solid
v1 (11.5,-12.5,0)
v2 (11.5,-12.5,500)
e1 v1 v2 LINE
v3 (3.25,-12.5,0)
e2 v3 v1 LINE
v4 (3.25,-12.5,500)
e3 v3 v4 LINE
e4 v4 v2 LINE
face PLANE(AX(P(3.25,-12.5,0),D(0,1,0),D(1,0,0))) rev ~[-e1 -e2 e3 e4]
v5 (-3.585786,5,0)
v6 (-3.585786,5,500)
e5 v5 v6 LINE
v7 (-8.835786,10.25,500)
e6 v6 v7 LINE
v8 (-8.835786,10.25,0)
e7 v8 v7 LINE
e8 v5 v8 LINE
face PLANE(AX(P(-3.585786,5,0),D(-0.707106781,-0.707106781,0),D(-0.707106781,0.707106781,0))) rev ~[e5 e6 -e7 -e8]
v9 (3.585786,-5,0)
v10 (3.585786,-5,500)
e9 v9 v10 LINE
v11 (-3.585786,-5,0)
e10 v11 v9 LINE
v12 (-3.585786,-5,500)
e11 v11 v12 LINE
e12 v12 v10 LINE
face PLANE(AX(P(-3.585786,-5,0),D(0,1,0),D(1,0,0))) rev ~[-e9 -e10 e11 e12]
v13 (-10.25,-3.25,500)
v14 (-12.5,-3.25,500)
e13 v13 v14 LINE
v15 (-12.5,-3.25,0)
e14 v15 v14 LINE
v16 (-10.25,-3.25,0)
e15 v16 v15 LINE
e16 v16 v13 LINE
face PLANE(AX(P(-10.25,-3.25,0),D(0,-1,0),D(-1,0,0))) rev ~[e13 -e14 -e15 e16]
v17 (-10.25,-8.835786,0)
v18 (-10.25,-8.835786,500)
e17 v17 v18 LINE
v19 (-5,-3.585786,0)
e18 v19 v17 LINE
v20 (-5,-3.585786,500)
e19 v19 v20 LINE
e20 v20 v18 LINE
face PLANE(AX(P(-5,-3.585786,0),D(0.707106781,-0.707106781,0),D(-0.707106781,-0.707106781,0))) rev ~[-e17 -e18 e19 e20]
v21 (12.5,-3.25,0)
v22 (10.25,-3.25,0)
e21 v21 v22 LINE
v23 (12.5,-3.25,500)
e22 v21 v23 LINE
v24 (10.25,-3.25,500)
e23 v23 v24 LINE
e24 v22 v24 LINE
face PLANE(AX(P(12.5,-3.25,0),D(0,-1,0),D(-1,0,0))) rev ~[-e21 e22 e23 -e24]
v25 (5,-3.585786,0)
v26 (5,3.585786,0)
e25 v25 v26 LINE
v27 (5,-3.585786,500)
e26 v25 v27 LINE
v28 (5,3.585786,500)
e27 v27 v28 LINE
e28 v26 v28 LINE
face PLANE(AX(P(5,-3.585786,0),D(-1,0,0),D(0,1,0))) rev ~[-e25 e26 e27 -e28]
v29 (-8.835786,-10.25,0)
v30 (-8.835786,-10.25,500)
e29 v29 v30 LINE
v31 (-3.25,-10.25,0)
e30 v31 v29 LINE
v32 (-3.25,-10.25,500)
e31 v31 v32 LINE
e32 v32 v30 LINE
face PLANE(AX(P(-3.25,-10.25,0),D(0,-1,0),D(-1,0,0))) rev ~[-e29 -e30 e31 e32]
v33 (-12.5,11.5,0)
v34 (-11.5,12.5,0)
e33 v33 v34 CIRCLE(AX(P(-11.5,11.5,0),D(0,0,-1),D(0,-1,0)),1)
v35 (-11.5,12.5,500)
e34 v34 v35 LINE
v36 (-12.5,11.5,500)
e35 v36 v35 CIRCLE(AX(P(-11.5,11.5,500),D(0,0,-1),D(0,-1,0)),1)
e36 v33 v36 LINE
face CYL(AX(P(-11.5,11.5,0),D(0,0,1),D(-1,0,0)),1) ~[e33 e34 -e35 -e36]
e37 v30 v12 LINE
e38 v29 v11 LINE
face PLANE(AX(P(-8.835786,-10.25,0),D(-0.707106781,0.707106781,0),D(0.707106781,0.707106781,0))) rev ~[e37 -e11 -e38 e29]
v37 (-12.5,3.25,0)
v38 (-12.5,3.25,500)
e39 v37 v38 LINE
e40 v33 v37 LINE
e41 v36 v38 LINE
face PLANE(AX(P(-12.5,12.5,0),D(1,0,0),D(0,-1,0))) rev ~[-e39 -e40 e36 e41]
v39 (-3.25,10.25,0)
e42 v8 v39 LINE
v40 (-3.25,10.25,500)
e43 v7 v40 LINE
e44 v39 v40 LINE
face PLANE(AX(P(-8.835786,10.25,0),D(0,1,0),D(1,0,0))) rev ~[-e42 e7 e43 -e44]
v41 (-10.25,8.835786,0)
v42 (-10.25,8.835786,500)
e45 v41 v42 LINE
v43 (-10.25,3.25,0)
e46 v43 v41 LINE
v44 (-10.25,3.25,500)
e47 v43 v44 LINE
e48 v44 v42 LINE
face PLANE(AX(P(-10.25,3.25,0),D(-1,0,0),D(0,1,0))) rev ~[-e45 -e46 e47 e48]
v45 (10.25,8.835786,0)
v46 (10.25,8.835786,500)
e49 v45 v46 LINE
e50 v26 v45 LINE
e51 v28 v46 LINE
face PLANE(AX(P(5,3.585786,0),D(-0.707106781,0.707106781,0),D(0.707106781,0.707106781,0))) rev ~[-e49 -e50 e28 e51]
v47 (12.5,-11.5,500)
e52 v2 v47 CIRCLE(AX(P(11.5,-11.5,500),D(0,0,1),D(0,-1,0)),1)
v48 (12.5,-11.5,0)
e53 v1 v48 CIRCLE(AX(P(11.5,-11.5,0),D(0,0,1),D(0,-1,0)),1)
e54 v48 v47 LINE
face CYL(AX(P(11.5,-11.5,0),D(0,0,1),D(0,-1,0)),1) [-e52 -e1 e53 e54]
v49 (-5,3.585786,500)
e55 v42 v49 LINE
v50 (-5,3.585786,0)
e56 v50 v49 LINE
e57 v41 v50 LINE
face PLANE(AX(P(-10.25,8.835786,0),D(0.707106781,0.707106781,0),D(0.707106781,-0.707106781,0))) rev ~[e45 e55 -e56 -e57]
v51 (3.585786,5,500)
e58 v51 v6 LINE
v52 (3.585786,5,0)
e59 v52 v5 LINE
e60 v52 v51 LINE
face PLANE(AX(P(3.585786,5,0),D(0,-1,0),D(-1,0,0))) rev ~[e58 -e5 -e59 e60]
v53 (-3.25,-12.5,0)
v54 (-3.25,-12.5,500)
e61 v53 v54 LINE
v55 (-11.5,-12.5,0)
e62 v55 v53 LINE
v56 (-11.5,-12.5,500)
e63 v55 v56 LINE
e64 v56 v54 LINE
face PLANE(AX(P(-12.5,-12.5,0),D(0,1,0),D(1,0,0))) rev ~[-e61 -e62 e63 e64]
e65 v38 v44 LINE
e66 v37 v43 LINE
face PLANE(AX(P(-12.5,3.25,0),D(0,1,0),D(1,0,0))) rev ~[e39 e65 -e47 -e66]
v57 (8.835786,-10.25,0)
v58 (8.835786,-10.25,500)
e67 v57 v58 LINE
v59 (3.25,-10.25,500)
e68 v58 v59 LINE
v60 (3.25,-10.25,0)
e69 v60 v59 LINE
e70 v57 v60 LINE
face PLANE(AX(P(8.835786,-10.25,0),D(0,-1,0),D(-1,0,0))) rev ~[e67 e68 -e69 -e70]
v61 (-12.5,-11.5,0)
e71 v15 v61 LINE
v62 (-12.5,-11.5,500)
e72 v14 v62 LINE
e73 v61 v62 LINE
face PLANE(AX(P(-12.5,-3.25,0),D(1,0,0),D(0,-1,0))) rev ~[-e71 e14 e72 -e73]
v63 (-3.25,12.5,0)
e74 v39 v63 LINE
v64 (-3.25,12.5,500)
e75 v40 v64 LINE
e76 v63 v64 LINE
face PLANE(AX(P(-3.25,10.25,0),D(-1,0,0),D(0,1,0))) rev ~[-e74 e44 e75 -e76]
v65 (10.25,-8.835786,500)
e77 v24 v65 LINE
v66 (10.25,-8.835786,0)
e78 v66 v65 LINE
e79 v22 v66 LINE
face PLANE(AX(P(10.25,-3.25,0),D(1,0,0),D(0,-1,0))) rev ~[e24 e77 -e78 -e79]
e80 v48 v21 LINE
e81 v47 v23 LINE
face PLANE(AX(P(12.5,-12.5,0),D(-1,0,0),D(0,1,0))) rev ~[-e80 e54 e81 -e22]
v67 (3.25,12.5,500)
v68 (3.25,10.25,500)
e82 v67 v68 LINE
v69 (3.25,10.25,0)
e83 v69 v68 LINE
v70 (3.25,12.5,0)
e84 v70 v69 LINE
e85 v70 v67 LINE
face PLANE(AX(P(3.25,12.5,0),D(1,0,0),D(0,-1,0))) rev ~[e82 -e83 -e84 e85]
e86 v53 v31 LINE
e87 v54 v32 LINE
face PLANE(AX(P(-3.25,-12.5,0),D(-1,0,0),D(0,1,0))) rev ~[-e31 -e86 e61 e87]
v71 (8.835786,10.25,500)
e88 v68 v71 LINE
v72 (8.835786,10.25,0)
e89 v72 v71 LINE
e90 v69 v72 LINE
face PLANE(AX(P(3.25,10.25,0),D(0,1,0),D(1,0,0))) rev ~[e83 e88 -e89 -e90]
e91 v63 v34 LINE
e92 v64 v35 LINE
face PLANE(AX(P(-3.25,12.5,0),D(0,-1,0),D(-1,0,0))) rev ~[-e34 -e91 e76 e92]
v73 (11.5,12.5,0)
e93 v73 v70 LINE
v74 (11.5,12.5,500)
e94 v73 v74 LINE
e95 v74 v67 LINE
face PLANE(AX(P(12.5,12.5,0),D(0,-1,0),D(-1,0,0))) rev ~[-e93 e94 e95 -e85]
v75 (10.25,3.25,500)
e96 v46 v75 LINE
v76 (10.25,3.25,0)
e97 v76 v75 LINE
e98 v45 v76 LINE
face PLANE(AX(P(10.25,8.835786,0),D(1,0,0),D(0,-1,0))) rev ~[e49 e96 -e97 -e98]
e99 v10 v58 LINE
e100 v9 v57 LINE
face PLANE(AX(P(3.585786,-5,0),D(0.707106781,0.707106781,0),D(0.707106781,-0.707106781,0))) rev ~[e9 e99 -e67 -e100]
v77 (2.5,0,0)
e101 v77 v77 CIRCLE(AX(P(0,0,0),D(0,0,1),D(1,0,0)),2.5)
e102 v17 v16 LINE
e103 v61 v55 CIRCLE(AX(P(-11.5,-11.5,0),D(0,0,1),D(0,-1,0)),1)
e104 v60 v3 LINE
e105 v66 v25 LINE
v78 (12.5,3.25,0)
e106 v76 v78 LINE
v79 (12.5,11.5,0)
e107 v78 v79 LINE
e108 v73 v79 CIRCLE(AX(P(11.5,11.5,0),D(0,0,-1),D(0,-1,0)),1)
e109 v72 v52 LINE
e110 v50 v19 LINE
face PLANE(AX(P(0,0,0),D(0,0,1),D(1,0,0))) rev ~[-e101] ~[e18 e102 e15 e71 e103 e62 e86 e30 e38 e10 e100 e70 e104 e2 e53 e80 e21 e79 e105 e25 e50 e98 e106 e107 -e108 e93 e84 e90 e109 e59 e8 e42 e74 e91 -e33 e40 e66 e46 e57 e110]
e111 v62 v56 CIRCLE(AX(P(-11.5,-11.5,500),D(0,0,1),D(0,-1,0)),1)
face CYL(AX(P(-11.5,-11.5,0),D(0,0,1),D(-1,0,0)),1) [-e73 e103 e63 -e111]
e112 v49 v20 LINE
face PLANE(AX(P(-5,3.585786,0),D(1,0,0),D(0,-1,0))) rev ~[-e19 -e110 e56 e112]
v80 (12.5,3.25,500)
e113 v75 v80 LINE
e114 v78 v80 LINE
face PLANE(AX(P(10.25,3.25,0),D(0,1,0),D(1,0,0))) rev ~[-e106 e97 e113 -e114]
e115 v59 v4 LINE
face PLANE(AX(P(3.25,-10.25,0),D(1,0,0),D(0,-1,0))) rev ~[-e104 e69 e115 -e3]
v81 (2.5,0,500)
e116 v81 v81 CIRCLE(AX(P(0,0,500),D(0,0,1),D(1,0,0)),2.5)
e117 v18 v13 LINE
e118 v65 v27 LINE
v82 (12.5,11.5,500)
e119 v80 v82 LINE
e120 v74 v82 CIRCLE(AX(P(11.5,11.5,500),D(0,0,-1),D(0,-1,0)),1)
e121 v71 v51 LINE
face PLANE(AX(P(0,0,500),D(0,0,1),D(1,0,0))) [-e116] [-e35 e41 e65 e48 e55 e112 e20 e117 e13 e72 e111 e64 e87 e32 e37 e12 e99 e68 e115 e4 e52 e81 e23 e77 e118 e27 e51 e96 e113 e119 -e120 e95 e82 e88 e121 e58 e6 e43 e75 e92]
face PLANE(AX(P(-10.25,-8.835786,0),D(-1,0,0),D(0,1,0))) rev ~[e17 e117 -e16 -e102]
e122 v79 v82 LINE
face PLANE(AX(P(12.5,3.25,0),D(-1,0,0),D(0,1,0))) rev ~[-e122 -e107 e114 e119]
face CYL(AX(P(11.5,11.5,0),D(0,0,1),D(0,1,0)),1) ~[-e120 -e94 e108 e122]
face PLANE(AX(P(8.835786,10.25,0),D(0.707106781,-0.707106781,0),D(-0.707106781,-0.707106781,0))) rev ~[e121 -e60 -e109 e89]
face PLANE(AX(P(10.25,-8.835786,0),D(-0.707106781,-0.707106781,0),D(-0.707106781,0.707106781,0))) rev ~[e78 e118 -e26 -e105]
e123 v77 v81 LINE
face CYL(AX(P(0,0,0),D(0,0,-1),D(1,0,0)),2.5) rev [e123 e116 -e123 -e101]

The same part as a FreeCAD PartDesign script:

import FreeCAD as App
import Part
import Sketcher
from FreeCAD import Vector


def edges_at(feature, points):
    """Names of the edges that pass closest to the given points."""
    edges = feature.Shape.Edges
    near = lambda p: min(range(len(edges)), key=lambda i: edges[i].distToShape(Part.Vertex(*p))[0])
    return sorted({f"Edge{near(p) + 1}" for p in points})

doc = App.newDocument("Part")
params = doc.addObject("Spreadsheet::Sheet", "Params")
for row, (alias, value) in enumerate([
    ("sketch1_diameter", "5 mm"),
    ("sketch1_width", "2.25 mm"),
    ("pad1_length", "500 mm"),
    ("fillet_radius", "1 mm"),
], start=1):
    params.set(f"A{row}", alias)
    params.set(f"B{row}", "=" + value)
    params.setAlias(f"B{row}", alias)

body = doc.addObject("PartDesign::Body", "Body")

sketch1 = body.newObject("Sketcher::SketchObject", "Sketch")
sketch1.AttachmentSupport = (doc.getObject("XY_Plane"), [""])
sketch1.MapMode = "FlatFace"
sketch1.addGeometry(Part.LineSegment(Vector(-12.5, 12.5, 0), Vector(-12.5, 3.2, 0)), False)
sketch1.addGeometry(Part.LineSegment(Vector(-12.5, 3.2, 0), Vector(-10.2, 3.2, 0)), False)
sketch1.addGeometry(Part.LineSegment(Vector(-10.2, 3.2, 0), Vector(-10.2, 8.8, 0)), False)
sketch1.addGeometry(Part.LineSegment(Vector(-10.2, 8.8, 0), Vector(-5, 3.6, 0)), False)
sketch1.addGeometry(Part.LineSegment(Vector(-5, 3.6, 0), Vector(-5, -3.6, 0)), False)
sketch1.addGeometry(Part.LineSegment(Vector(-5, -3.6, 0), Vector(-10.2, -8.8, 0)), False)
sketch1.addGeometry(Part.LineSegment(Vector(-10.2, -8.8, 0), Vector(-10.2, -3.2, 0)), False)
sketch1.addGeometry(Part.LineSegment(Vector(-10.2, -3.2, 0), Vector(-12.5, -3.2, 0)), False)
sketch1.addGeometry(Part.LineSegment(Vector(-12.5, -3.2, 0), Vector(-12.5, -12.5, 0)), False)
sketch1.addGeometry(Part.LineSegment(Vector(-12.5, -12.5, 0), Vector(-3.2, -12.5, 0)), False)
sketch1.addGeometry(Part.LineSegment(Vector(-3.2, -12.5, 0), Vector(-3.2, -10.2, 0)), False)
sketch1.addGeometry(Part.LineSegment(Vector(-3.2, -10.2, 0), Vector(-8.8, -10.2, 0)), False)
sketch1.addGeometry(Part.LineSegment(Vector(-8.8, -10.2, 0), Vector(-3.6, -5, 0)), False)
sketch1.addGeometry(Part.LineSegment(Vector(-3.6, -5, 0), Vector(3.6, -5, 0)), False)
sketch1.addGeometry(Part.LineSegment(Vector(3.6, -5, 0), Vector(8.8, -10.2, 0)), False)
sketch1.addGeometry(Part.LineSegment(Vector(8.8, -10.2, 0), Vector(3.2, -10.2, 0)), False)
sketch1.addGeometry(Part.LineSegment(Vector(3.2, -10.2, 0), Vector(3.2, -12.5, 0)), False)
sketch1.addGeometry(Part.LineSegment(Vector(3.2, -12.5, 0), Vector(12.5, -12.5, 0)), False)
sketch1.addGeometry(Part.LineSegment(Vector(12.5, -12.5, 0), Vector(12.5, -3.2, 0)), False)
sketch1.addGeometry(Part.LineSegment(Vector(12.5, -3.2, 0), Vector(10.2, -3.2, 0)), False)
sketch1.addGeometry(Part.LineSegment(Vector(10.2, -3.2, 0), Vector(10.2, -8.8, 0)), False)
sketch1.addGeometry(Part.LineSegment(Vector(10.2, -8.8, 0), Vector(5, -3.6, 0)), False)
sketch1.addGeometry(Part.LineSegment(Vector(5, -3.6, 0), Vector(5, 3.6, 0)), False)
sketch1.addGeometry(Part.LineSegment(Vector(5, 3.6, 0), Vector(10.2, 8.8, 0)), False)
sketch1.addGeometry(Part.LineSegment(Vector(10.2, 8.8, 0), Vector(10.2, 3.2, 0)), False)
sketch1.addGeometry(Part.LineSegment(Vector(10.2, 3.2, 0), Vector(12.5, 3.2, 0)), False)
sketch1.addGeometry(Part.LineSegment(Vector(12.5, 3.2, 0), Vector(12.5, 12.5, 0)), False)
sketch1.addGeometry(Part.LineSegment(Vector(12.5, 12.5, 0), Vector(3.2, 12.5, 0)), False)
sketch1.addGeometry(Part.LineSegment(Vector(3.2, 12.5, 0), Vector(3.2, 10.2, 0)), False)
sketch1.addGeometry(Part.LineSegment(Vector(3.2, 10.2, 0), Vector(8.8, 10.2, 0)), False)
sketch1.addGeometry(Part.LineSegment(Vector(8.8, 10.2, 0), Vector(3.6, 5, 0)), False)
sketch1.addGeometry(Part.LineSegment(Vector(3.6, 5, 0), Vector(-3.6, 5, 0)), False)
sketch1.addGeometry(Part.LineSegment(Vector(-3.6, 5, 0), Vector(-8.8, 10.2, 0)), False)
sketch1.addGeometry(Part.LineSegment(Vector(-8.8, 10.2, 0), Vector(-3.2, 10.2, 0)), False)
sketch1.addGeometry(Part.LineSegment(Vector(-3.2, 10.2, 0), Vector(-3.2, 12.5, 0)), False)
sketch1.addGeometry(Part.LineSegment(Vector(-3.2, 12.5, 0), Vector(-12.5, 12.5, 0)), False)
sketch1.addGeometry(Part.Circle(Vector(0, 0, 0), Vector(0, 0, 1), 2.5), False)
sketch1.addConstraint(Sketcher.Constraint("Coincident", 0, 2, 1, 1))
sketch1.addConstraint(Sketcher.Constraint("Coincident", 1, 2, 2, 1))
sketch1.addConstraint(Sketcher.Constraint("Coincident", 2, 2, 3, 1))
sketch1.addConstraint(Sketcher.Constraint("Coincident", 3, 2, 4, 1))
sketch1.addConstraint(Sketcher.Constraint("Coincident", 4, 2, 5, 1))
sketch1.addConstraint(Sketcher.Constraint("Coincident", 5, 2, 6, 1))
sketch1.addConstraint(Sketcher.Constraint("Coincident", 6, 2, 7, 1))
sketch1.addConstraint(Sketcher.Constraint("Coincident", 7, 2, 8, 1))
sketch1.addConstraint(Sketcher.Constraint("Coincident", 8, 2, 9, 1))
sketch1.addConstraint(Sketcher.Constraint("Coincident", 9, 2, 10, 1))
sketch1.addConstraint(Sketcher.Constraint("Coincident", 10, 2, 11, 1))
sketch1.addConstraint(Sketcher.Constraint("Coincident", 11, 2, 12, 1))
sketch1.addConstraint(Sketcher.Constraint("Coincident", 12, 2, 13, 1))
sketch1.addConstraint(Sketcher.Constraint("Coincident", 13, 2, 14, 1))
sketch1.addConstraint(Sketcher.Constraint("Coincident", 14, 2, 15, 1))
sketch1.addConstraint(Sketcher.Constraint("Coincident", 15, 2, 16, 1))
sketch1.addConstraint(Sketcher.Constraint("Coincident", 16, 2, 17, 1))
sketch1.addConstraint(Sketcher.Constraint("Coincident", 17, 2, 18, 1))
sketch1.addConstraint(Sketcher.Constraint("Coincident", 18, 2, 19, 1))
sketch1.addConstraint(Sketcher.Constraint("Coincident", 19, 2, 20, 1))
sketch1.addConstraint(Sketcher.Constraint("Coincident", 20, 2, 21, 1))
sketch1.addConstraint(Sketcher.Constraint("Coincident", 21, 2, 22, 1))
sketch1.addConstraint(Sketcher.Constraint("Coincident", 22, 2, 23, 1))
sketch1.addConstraint(Sketcher.Constraint("Coincident", 23, 2, 24, 1))
sketch1.addConstraint(Sketcher.Constraint("Coincident", 24, 2, 25, 1))
sketch1.addConstraint(Sketcher.Constraint("Coincident", 25, 2, 26, 1))
sketch1.addConstraint(Sketcher.Constraint("Coincident", 26, 2, 27, 1))
sketch1.addConstraint(Sketcher.Constraint("Coincident", 27, 2, 28, 1))
sketch1.addConstraint(Sketcher.Constraint("Coincident", 28, 2, 29, 1))
sketch1.addConstraint(Sketcher.Constraint("Coincident", 29, 2, 30, 1))
sketch1.addConstraint(Sketcher.Constraint("Coincident", 30, 2, 31, 1))
sketch1.addConstraint(Sketcher.Constraint("Coincident", 31, 2, 32, 1))
sketch1.addConstraint(Sketcher.Constraint("Coincident", 32, 2, 33, 1))
sketch1.addConstraint(Sketcher.Constraint("Coincident", 33, 2, 34, 1))
sketch1.addConstraint(Sketcher.Constraint("Coincident", 34, 2, 35, 1))
sketch1.addConstraint(Sketcher.Constraint("Coincident", 35, 2, 0, 1))
sketch1.addConstraint(Sketcher.Constraint("Vertical", 0))
sketch1.addConstraint(Sketcher.Constraint("Horizontal", 1))
sketch1.addConstraint(Sketcher.Constraint("Vertical", 2))
sketch1.addConstraint(Sketcher.Constraint("Vertical", 4))
sketch1.addConstraint(Sketcher.Constraint("Vertical", 6))
sketch1.addConstraint(Sketcher.Constraint("Horizontal", 7))
sketch1.addConstraint(Sketcher.Constraint("Vertical", 8))
sketch1.addConstraint(Sketcher.Constraint("Horizontal", 9))
sketch1.addConstraint(Sketcher.Constraint("Vertical", 10))
sketch1.addConstraint(Sketcher.Constraint("Horizontal", 11))
sketch1.addConstraint(Sketcher.Constraint("Horizontal", 13))
sketch1.addConstraint(Sketcher.Constraint("Horizontal", 15))
sketch1.addConstraint(Sketcher.Constraint("Vertical", 16))
sketch1.addConstraint(Sketcher.Constraint("Horizontal", 17))
sketch1.addConstraint(Sketcher.Constraint("Vertical", 18))
sketch1.addConstraint(Sketcher.Constraint("Horizontal", 19))
sketch1.addConstraint(Sketcher.Constraint("Vertical", 20))
sketch1.addConstraint(Sketcher.Constraint("Vertical", 22))
sketch1.addConstraint(Sketcher.Constraint("Vertical", 24))
sketch1.addConstraint(Sketcher.Constraint("Horizontal", 25))
sketch1.addConstraint(Sketcher.Constraint("Vertical", 26))
sketch1.addConstraint(Sketcher.Constraint("Horizontal", 27))
sketch1.addConstraint(Sketcher.Constraint("Vertical", 28))
sketch1.addConstraint(Sketcher.Constraint("Horizontal", 29))
sketch1.addConstraint(Sketcher.Constraint("Horizontal", 31))
sketch1.addConstraint(Sketcher.Constraint("Horizontal", 33))
sketch1.addConstraint(Sketcher.Constraint("Vertical", 34))
sketch1.addConstraint(Sketcher.Constraint("Horizontal", 35))
sketch1.addConstraint(Sketcher.Constraint("Coincident", 36, 3, -1, 1))
sketch1.addConstraint(Sketcher.Constraint("Symmetric", 0, 2, 18, 2, -1, 1))
sketch1.addConstraint(Sketcher.Constraint("Symmetric", 2, 2, 20, 2, -1, 1))
sketch1.addConstraint(Sketcher.Constraint("Symmetric", 3, 2, 21, 2, -1, 1))
sketch1.addConstraint(Sketcher.Constraint("Symmetric", 5, 2, 23, 2, -1, 1))
sketch1.addConstraint(Sketcher.Constraint("Symmetric", 7, 2, 25, 2, -1, 1))
sketch1.addConstraint(Sketcher.Constraint("Symmetric", 9, 2, 27, 2, -1, 1))
sketch1.addConstraint(Sketcher.Constraint("Symmetric", 11, 2, 29, 2, -1, 1))
sketch1.addConstraint(Sketcher.Constraint("Symmetric", 12, 2, 30, 2, -1, 1))
sketch1.addConstraint(Sketcher.Constraint("Symmetric", 14, 2, 32, 2, -1, 1))
sketch1.addConstraint(Sketcher.Constraint("Symmetric", 16, 2, 34, 2, -1, 1))
sketch1.addConstraint(Sketcher.Constraint("Symmetric", 11, 2, 14, 2, -2))
sketch1.addConstraint(Sketcher.Constraint("Symmetric", 9, 2, 16, 2, -2))
sketch1.addConstraint(Sketcher.Constraint("Symmetric", 7, 2, 18, 2, -2))
sketch1.addConstraint(Sketcher.Constraint("Symmetric", 5, 2, 20, 2, -2))
sketch1.addConstraint(Sketcher.Constraint("Perpendicular", 3, 5))
sketch1.addConstraint(Sketcher.Constraint("Parallel", 5, 12))
sketch1.addConstraint(Sketcher.Constraint("Perpendicular", 12, 14))
sketch1.addConstraint(Sketcher.Constraint("Perpendicular", 21, 23))
sketch1.addConstraint(Sketcher.Constraint("Perpendicular", 30, 32))
sketch1.addConstraint(Sketcher.Constraint("Horizontal", 4, 2, 21, 2))
sketch1.addConstraint(Sketcher.Constraint("Equal", 35, 0))
sketch1.addConstraint(Sketcher.Constraint("Equal", 33, 2))
sketch1.addConstraint(Sketcher.Constraint("Equal", 31, 4))
sketch1.addConstraint(Sketcher.Constraint("Equal", 25, 10))
sketch1.addConstraint(Sketcher.Constraint("Equal", 5, 12))
sketch1.addConstraint(Sketcher.Constraint("Diameter", 36, 5.0))
sketch1.addConstraint(Sketcher.Constraint("DistanceX", 3, 2, -1, 1, 5.0))
sketch1.addConstraint(Sketcher.Constraint("DistanceX", 5, 2, 9, 2, 7.0))
sketch1.addConstraint(Sketcher.Constraint("DistanceX", 1, 1, 1, 2, 2.25))
sketch1.addConstraint(Sketcher.Constraint("DistanceX", 0, 2, -1, 1, 12.5))
sketch1.addConstraint(Sketcher.Constraint("DistanceX", 11, 2, 11, 1, 5.585786))
sketch1.setExpression("Constraints[90]", "Params.sketch1_diameter")
sketch1.setExpression("Constraints[93]", "Params.sketch1_width")
pad1 = body.newObject("PartDesign::Pad", "Pad")
pad1.Profile = sketch1
pad1.setExpression("Length", "Params.pad1_length")
doc.recompute()

fillet = body.newObject("PartDesign::Fillet", "Fillet")
fillet.Base = (pad1, edges_at(pad1, [
    (12.5, 12.5, 250),
    (12.5, -12.5, 250),
    (-12.5, -12.5, 250),
    (-12.5, 12.5, 250),
]))
fillet.setExpression("Radius", "Params.fillet_radius")

doc.recompute()
